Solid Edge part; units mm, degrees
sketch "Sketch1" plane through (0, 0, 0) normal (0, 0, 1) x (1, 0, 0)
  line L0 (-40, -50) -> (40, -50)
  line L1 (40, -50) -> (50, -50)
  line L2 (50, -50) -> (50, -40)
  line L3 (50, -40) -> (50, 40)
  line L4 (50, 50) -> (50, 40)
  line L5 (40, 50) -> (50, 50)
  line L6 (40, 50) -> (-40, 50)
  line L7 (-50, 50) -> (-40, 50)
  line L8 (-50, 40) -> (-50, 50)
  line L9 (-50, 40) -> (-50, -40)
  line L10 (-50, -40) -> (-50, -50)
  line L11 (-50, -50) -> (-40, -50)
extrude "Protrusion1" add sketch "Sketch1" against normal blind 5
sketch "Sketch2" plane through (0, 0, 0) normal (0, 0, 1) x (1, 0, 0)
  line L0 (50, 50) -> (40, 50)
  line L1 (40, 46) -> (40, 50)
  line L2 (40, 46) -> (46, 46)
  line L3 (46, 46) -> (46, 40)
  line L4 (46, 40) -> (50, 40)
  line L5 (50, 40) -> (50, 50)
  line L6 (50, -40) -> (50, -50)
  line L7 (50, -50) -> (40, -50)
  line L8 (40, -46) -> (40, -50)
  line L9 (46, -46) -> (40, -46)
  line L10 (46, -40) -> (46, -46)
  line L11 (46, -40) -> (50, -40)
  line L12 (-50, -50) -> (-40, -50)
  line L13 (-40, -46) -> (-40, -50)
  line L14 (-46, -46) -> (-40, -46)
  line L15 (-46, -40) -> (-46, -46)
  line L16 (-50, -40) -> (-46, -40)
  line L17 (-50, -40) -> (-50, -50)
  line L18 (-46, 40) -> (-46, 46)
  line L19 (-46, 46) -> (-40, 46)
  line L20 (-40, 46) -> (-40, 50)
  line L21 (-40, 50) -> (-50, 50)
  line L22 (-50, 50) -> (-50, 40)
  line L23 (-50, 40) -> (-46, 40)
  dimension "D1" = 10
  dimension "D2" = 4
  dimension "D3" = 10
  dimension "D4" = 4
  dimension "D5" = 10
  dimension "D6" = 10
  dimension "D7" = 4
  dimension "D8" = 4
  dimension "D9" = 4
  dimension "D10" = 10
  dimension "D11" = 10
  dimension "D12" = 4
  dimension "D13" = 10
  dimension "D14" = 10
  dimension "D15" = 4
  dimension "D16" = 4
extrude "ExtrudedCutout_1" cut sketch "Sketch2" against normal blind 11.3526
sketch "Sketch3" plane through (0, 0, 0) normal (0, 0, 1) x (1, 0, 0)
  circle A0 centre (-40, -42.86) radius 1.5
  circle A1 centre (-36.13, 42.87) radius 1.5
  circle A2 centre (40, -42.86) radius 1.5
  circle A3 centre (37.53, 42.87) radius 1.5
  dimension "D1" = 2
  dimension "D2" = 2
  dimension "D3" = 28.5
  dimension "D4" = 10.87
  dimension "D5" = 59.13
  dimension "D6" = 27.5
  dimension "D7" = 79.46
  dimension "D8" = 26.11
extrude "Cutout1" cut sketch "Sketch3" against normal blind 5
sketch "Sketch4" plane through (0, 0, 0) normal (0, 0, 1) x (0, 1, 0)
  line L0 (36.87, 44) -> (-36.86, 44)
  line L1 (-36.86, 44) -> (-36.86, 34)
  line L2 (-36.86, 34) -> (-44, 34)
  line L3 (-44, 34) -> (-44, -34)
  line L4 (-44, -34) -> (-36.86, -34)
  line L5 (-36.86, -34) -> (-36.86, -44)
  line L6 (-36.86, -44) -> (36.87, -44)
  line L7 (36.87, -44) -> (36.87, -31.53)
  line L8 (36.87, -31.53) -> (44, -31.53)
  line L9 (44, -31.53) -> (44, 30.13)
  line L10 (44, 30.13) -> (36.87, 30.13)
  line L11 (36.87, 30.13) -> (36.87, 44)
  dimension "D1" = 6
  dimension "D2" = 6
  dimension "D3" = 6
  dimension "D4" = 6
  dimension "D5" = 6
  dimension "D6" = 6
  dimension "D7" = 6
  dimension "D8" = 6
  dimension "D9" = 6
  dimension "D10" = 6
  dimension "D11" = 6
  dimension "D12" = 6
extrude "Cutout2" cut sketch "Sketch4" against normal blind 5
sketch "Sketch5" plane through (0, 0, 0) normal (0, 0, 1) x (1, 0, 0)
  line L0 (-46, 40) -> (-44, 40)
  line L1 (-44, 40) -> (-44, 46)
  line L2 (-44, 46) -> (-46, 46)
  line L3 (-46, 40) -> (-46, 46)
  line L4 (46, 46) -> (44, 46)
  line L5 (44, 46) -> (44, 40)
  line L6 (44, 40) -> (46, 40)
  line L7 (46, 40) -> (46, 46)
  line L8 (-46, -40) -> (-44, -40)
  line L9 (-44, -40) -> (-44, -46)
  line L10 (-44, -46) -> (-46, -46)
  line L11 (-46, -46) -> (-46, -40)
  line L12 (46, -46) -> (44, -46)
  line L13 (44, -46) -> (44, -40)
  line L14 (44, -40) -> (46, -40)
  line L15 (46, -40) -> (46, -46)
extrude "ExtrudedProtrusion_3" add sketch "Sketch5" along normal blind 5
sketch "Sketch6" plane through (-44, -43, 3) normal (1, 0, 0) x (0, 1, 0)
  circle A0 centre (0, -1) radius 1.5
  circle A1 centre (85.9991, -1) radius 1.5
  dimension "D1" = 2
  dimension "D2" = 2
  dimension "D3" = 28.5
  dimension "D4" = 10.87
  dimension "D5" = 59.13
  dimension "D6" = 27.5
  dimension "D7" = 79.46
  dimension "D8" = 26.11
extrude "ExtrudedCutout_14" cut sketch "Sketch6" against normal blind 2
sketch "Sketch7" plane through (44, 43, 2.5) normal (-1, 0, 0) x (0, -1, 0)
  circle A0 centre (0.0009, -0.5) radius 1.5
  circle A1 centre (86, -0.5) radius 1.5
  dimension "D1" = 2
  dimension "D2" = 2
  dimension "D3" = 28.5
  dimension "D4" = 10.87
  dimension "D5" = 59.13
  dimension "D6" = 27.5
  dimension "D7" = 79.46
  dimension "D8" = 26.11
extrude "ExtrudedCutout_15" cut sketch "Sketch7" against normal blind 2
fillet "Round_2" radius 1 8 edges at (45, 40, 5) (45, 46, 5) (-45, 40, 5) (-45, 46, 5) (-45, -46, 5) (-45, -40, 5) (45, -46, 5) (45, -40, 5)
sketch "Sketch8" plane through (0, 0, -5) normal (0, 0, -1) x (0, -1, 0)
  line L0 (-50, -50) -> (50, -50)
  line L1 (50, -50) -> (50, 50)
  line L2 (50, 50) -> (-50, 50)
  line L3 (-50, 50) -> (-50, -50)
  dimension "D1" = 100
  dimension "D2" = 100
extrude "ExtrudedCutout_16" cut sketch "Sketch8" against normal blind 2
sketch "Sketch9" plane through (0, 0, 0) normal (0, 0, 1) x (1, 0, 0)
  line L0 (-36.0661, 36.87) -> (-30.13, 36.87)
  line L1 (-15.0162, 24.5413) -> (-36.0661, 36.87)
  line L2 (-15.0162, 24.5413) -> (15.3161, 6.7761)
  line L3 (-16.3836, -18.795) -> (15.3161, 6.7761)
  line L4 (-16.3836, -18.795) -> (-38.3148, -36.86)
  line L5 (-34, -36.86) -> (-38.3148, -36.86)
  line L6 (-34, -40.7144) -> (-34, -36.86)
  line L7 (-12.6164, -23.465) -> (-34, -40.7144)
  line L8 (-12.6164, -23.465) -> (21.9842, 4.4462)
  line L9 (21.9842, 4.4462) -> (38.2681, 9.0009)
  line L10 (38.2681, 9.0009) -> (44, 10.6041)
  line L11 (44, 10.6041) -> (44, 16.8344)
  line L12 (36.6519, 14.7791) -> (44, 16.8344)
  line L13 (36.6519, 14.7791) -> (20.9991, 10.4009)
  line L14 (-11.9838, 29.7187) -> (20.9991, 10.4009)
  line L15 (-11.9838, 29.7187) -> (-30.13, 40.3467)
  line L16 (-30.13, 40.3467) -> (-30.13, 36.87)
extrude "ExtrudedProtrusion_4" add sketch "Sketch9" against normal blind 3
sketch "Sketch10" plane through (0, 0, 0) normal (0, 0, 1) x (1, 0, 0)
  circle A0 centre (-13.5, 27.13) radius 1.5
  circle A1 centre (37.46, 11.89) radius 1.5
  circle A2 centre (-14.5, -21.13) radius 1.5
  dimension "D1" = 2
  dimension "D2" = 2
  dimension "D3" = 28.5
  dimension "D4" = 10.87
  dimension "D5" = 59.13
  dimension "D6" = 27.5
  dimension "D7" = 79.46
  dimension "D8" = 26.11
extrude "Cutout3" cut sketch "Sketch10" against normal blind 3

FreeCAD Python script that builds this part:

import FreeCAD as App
import Part
import Sketcher

V = App.Vector


def edges_at(feature, points):
    """Names of the edges that pass closest to the given points."""
    edges = feature.Shape.Edges
    near = lambda p: min(range(len(edges)), key=lambda i: edges[i].distToShape(Part.Vertex(*p))[0])
    return sorted({f"Edge{near(p) + 1}" for p in points})

doc = App.newDocument("Part")
body = doc.addObject("PartDesign::Body", "Body")

sketch1 = doc.addObject("Sketcher::SketchObject", "Sketch")
body.addObject(sketch1)
sketch1.AttachmentSupport = (doc.XY_Plane, [""])
sketch1.MapMode = "FlatFace"
sketch1.addGeometry([
    Part.LineSegment(V(-50, -50, 0), V(50, -50, 0)),
    Part.LineSegment(V(50, -50, 0), V(50, 50, 0)),
    Part.LineSegment(V(50, 50, 0), V(-50, 50, 0)),
    Part.LineSegment(V(-50, 50, 0), V(-50, -50, 0)),
], False)
sketch1.addConstraint([
    Sketcher.Constraint("Coincident", 0, 2, 1, 1),
    Sketcher.Constraint("Coincident", 1, 2, 2, 1),
    Sketcher.Constraint("Coincident", 2, 2, 3, 1),
    Sketcher.Constraint("Coincident", 3, 2, 0, 1),
    Sketcher.Constraint("Horizontal", 0),
    Sketcher.Constraint("Vertical", 1),
    Sketcher.Constraint("Horizontal", 2),
    Sketcher.Constraint("Vertical", 3),
    Sketcher.Constraint("Symmetric", 0, 2, 2, 2, -1, 1),
    Sketcher.Constraint("Equal", 2, 1),
    Sketcher.Constraint("DistanceX", 0, 1, 0, 2, 100.0),
])
pad1 = doc.addObject("PartDesign::Pad", "Pad")
body.addObject(pad1)
pad1.Profile = sketch1
pad1.Length = 5
pad1.Reversed = True

sketch2 = doc.addObject("Sketcher::SketchObject", "Sketch001")
body.addObject(sketch2)
sketch2.AttachmentSupport = (doc.XY_Plane, [""])
sketch2.MapMode = "FlatFace"
sketch2.addGeometry([
    Part.LineSegment(V(50, 40, 0), V(50, 50, 0)),
    Part.LineSegment(V(50, 50, 0), V(40, 50, 0)),
    Part.LineSegment(V(40, 50, 0), V(40, 46, 0)),
    Part.LineSegment(V(40, 46, 0), V(46, 46, 0)),
    Part.LineSegment(V(46, 46, 0), V(46, 40, 0)),
    Part.LineSegment(V(46, 40, 0), V(50, 40, 0)),
    Part.LineSegment(V(50, -50, 0), V(50, -40, 0)),
    Part.LineSegment(V(50, -40, 0), V(46, -40, 0)),
    Part.LineSegment(V(46, -40, 0), V(46, -46, 0)),
    Part.LineSegment(V(46, -46, 0), V(40, -46, 0)),
    Part.LineSegment(V(40, -46, 0), V(40, -50, 0)),
    Part.LineSegment(V(40, -50, 0), V(50, -50, 0)),
    Part.LineSegment(V(-50, -40, 0), V(-50, -50, 0)),
    Part.LineSegment(V(-50, -50, 0), V(-40, -50, 0)),
    Part.LineSegment(V(-40, -50, 0), V(-40, -46, 0)),
    Part.LineSegment(V(-40, -46, 0), V(-46, -46, 0)),
    Part.LineSegment(V(-46, -46, 0), V(-46, -40, 0)),
    Part.LineSegment(V(-46, -40, 0), V(-50, -40, 0)),
    Part.LineSegment(V(-50, 40, 0), V(-46, 40, 0)),
    Part.LineSegment(V(-46, 40, 0), V(-46, 46, 0)),
    Part.LineSegment(V(-46, 46, 0), V(-40, 46, 0)),
    Part.LineSegment(V(-40, 46, 0), V(-40, 50, 0)),
    Part.LineSegment(V(-40, 50, 0), V(-50, 50, 0)),
    Part.LineSegment(V(-50, 50, 0), V(-50, 40, 0)),
], False)
sketch2.addConstraint([
    Sketcher.Constraint("Coincident", 0, 2, 1, 1),
    Sketcher.Constraint("Coincident", 1, 2, 2, 1),
    Sketcher.Constraint("Coincident", 2, 2, 3, 1),
    Sketcher.Constraint("Coincident", 3, 2, 4, 1),
    Sketcher.Constraint("Coincident", 4, 2, 5, 1),
    Sketcher.Constraint("Coincident", 5, 2, 0, 1),
    Sketcher.Constraint("Coincident", 6, 2, 7, 1),
    Sketcher.Constraint("Coincident", 7, 2, 8, 1),
    Sketcher.Constraint("Coincident", 8, 2, 9, 1),
    Sketcher.Constraint("Coincident", 9, 2, 10, 1),
    Sketcher.Constraint("Coincident", 10, 2, 11, 1),
    Sketcher.Constraint("Coincident", 11, 2, 6, 1),
    Sketcher.Constraint("Coincident", 12, 2, 13, 1),
    Sketcher.Constraint("Coincident", 13, 2, 14, 1),
    Sketcher.Constraint("Coincident", 14, 2, 15, 1),
    Sketcher.Constraint("Coincident", 15, 2, 16, 1),
    Sketcher.Constraint("Coincident", 16, 2, 17, 1),
    Sketcher.Constraint("Coincident", 17, 2, 12, 1),
    Sketcher.Constraint("Coincident", 18, 2, 19, 1),
    Sketcher.Constraint("Coincident", 19, 2, 20, 1),
    Sketcher.Constraint("Coincident", 20, 2, 21, 1),
    Sketcher.Constraint("Coincident", 21, 2, 22, 1),
    Sketcher.Constraint("Coincident", 22, 2, 23, 1),
    Sketcher.Constraint("Coincident", 23, 2, 18, 1),
    Sketcher.Constraint("Vertical", 0),
    Sketcher.Constraint("Horizontal", 1),
    Sketcher.Constraint("Vertical", 2),
    Sketcher.Constraint("Horizontal", 3),
    Sketcher.Constraint("Vertical", 4),
    Sketcher.Constraint("Horizontal", 5),
    Sketcher.Constraint("Vertical", 6),
    Sketcher.Constraint("Horizontal", 7),
    Sketcher.Constraint("Vertical", 8),
    Sketcher.Constraint("Horizontal", 9),
    Sketcher.Constraint("Vertical", 10),
    Sketcher.Constraint("Horizontal", 11),
    Sketcher.Constraint("Vertical", 12),
    Sketcher.Constraint("Horizontal", 13),
    Sketcher.Constraint("Vertical", 14),
    Sketcher.Constraint("Horizontal", 15),
    Sketcher.Constraint("Vertical", 16),
    Sketcher.Constraint("Horizontal", 17),
    Sketcher.Constraint("Horizontal", 18),
    Sketcher.Constraint("Vertical", 19),
    Sketcher.Constraint("Horizontal", 20),
    Sketcher.Constraint("Vertical", 21),
    Sketcher.Constraint("Horizontal", 22),
    Sketcher.Constraint("Vertical", 23),
    Sketcher.Constraint("Symmetric", 0, 2, 12, 2, -1, 1),
    Sketcher.Constraint("Symmetric", 2, 2, 14, 2, -1, 1),
    Sketcher.Constraint("Symmetric", 4, 2, 16, 2, -1, 1),
    Sketcher.Constraint("Symmetric", 7, 2, 18, 2, -1, 1),
    Sketcher.Constraint("Symmetric", 9, 2, 20, 2, -1, 1),
    Sketcher.Constraint("Symmetric", 11, 2, 22, 2, -1, 1),
    Sketcher.Constraint("Symmetric", 11, 2, 12, 2, -2),
    Sketcher.Constraint("Symmetric", 9, 2, 14, 2, -2),
    Sketcher.Constraint("Symmetric", 7, 2, 16, 2, -2),
    Sketcher.Constraint("Equal", 22, 0),
    Sketcher.Constraint("Equal", 18, 2),
    Sketcher.Constraint("DistanceX", -1, 1, 0, 2, 50.0),
    Sketcher.Constraint("DistanceY", -1, 1, 0, 2, 50.0),
    Sketcher.Constraint("DistanceX", -1, 1, 1, 2, 40.0),
    Sketcher.Constraint("DistanceY", -1, 1, 2, 2, 46.0),
])
pocket1 = doc.addObject("PartDesign::Pocket", "Pocket")
body.addObject(pocket1)
pocket1.Profile = sketch2
pocket1.Length = 11.3526

sketch3 = doc.addObject("Sketcher::SketchObject", "Sketch002")
body.addObject(sketch3)
sketch3.AttachmentSupport = (doc.XY_Plane, [""])
sketch3.MapMode = "FlatFace"
sketch3.addGeometry([
    Part.Circle(V(-40, -42.9, 0), V(0, 0, 1), 1.5),
    Part.Circle(V(-36.1, 42.9, 0), V(0, 0, 1), 1.5),
    Part.Circle(V(40, -42.9, 0), V(0, 0, 1), 1.5),
    Part.Circle(V(37.5, 42.9, 0), V(0, 0, 1), 1.5),
], False)
sketch3.addConstraint([
    Sketcher.Constraint("Equal", 0, 1),
    Sketcher.Constraint("Equal", 1, 2),
    Sketcher.Constraint("Equal", 2, 3),
    Sketcher.Constraint("Symmetric", 0, 3, 2, 3, -2),
    Sketcher.Constraint("Horizontal", 1, 3, 3, 3),
    Sketcher.Constraint("Diameter", 0, 3.0),
    Sketcher.Constraint("DistanceX", 0, 3, -1, 1, 40.0),
    Sketcher.Constraint("DistanceY", 0, 3, -1, 1, 42.86),
    Sketcher.Constraint("DistanceX", 1, 3, -1, 1, 36.13),
    Sketcher.Constraint("DistanceY", -1, 1, 1, 3, 42.87),
    Sketcher.Constraint("DistanceX", -1, 1, 3, 3, 37.53),
])
pocket2 = doc.addObject("PartDesign::Pocket", "Pocket001")
body.addObject(pocket2)
pocket2.Profile = sketch3
pocket2.Length = 5

sketch4 = doc.addObject("Sketcher::SketchObject", "Sketch003")
body.addObject(sketch4)
sketch4.AttachmentSupport = (doc.XY_Plane, [""])
sketch4.MapMode = "FlatFace"
sketch4.addGeometry([
    Part.LineSegment(V(-30, 37, 0), V(-44, 37, 0)),
    Part.LineSegment(V(-44, 37, 0), V(-44, -37, 0)),
    Part.LineSegment(V(-44, -37, 0), V(-34, -37, 0)),
    Part.LineSegment(V(-34, -37, 0), V(-34, -44, 0)),
    Part.LineSegment(V(-34, -44, 0), V(34, -44, 0)),
    Part.LineSegment(V(34, -44, 0), V(34, -37, 0)),
    Part.LineSegment(V(34, -37, 0), V(44, -37, 0)),
    Part.LineSegment(V(44, -37, 0), V(44, 37, 0)),
    Part.LineSegment(V(44, 37, 0), V(32, 37, 0)),
    Part.LineSegment(V(32, 37, 0), V(32, 44, 0)),
    Part.LineSegment(V(32, 44, 0), V(-30, 44, 0)),
    Part.LineSegment(V(-30, 44, 0), V(-30, 37, 0)),
], False)
sketch4.addConstraint([
    Sketcher.Constraint("Coincident", 0, 2, 1, 1),
    Sketcher.Constraint("Coincident", 1, 2, 2, 1),
    Sketcher.Constraint("Coincident", 2, 2, 3, 1),
    Sketcher.Constraint("Coincident", 3, 2, 4, 1),
    Sketcher.Constraint("Coincident", 4, 2, 5, 1),
    Sketcher.Constraint("Coincident", 5, 2, 6, 1),
    Sketcher.Constraint("Coincident", 6, 2, 7, 1),
    Sketcher.Constraint("Coincident", 7, 2, 8, 1),
    Sketcher.Constraint("Coincident", 8, 2, 9, 1),
    Sketcher.Constraint("Coincident", 9, 2, 10, 1),
    Sketcher.Constraint("Coincident", 10, 2, 11, 1),
    Sketcher.Constraint("Coincident", 11, 2, 0, 1),
    Sketcher.Constraint("Horizontal", 0),
    Sketcher.Constraint("Vertical", 1),
    Sketcher.Constraint("Horizontal", 2),
    Sketcher.Constraint("Vertical", 3),
    Sketcher.Constraint("Horizontal", 4),
    Sketcher.Constraint("Vertical", 5),
    Sketcher.Constraint("Horizontal", 6),
    Sketcher.Constraint("Vertical", 7),
    Sketcher.Constraint("Horizontal", 8),
    Sketcher.Constraint("Vertical", 9),
    Sketcher.Constraint("Horizontal", 10),
    Sketcher.Constraint("Vertical", 11),
    Sketcher.Constraint("Symmetric", 2, 2, 5, 2, -2),
    Sketcher.Constraint("Symmetric", 0, 2, 7, 2, -2),
    Sketcher.Constraint("DistanceX", 2, 1, 2, 2, 10.0),
    Sketcher.Constraint("DistanceX", 4, 1, 4, 2, 68.0),
    Sketcher.Constraint("DistanceY", 3, 2, -1, 1, 44.0),
    Sketcher.Constraint("DistanceY", -1, 1, 9, 2, 44.0),
    Sketcher.Constraint("DistanceX", 0, 2, 0, 1, 13.87),
    Sketcher.Constraint("DistanceX", 8, 2, 8, 1, 12.47),
    Sketcher.Constraint("DistanceY", 1, 2, 1, 1, 73.73),
    Sketcher.Constraint("DistanceY", 3, 2, 3, 1, 7.14),
])
pocket3 = doc.addObject("PartDesign::Pocket", "Pocket002")
body.addObject(pocket3)
pocket3.Profile = sketch4
pocket3.Length = 5

sketch5 = doc.addObject("Sketcher::SketchObject", "Sketch004")
body.addObject(sketch5)
sketch5.AttachmentSupport = (doc.XY_Plane, [""])
sketch5.MapMode = "FlatFace"
sketch5.addGeometry([
    Part.LineSegment(V(-46, 46, 0), V(-46, 40, 0)),
    Part.LineSegment(V(-46, 40, 0), V(-44, 40, 0)),
    Part.LineSegment(V(-44, 40, 0), V(-44, 46, 0)),
    Part.LineSegment(V(-44, 46, 0), V(-46, 46, 0)),
    Part.LineSegment(V(46, 40, 0), V(46, 46, 0)),
    Part.LineSegment(V(46, 46, 0), V(44, 46, 0)),
    Part.LineSegment(V(44, 46, 0), V(44, 40, 0)),
    Part.LineSegment(V(44, 40, 0), V(46, 40, 0)),
    Part.LineSegment(V(-44, -40, 0), V(-46, -40, 0)),
    Part.LineSegment(V(-46, -40, 0), V(-46, -46, 0)),
    Part.LineSegment(V(-46, -46, 0), V(-44, -46, 0)),
    Part.LineSegment(V(-44, -46, 0), V(-44, -40, 0)),
    Part.LineSegment(V(44, -46, 0), V(46, -46, 0)),
    Part.LineSegment(V(46, -46, 0), V(46, -40, 0)),
    Part.LineSegment(V(46, -40, 0), V(44, -40, 0)),
    Part.LineSegment(V(44, -40, 0), V(44, -46, 0)),
], False)
sketch5.addConstraint([
    Sketcher.Constraint("Coincident", 0, 2, 1, 1),
    Sketcher.Constraint("Coincident", 1, 2, 2, 1),
    Sketcher.Constraint("Coincident", 2, 2, 3, 1),
    Sketcher.Constraint("Coincident", 3, 2, 0, 1),
    Sketcher.Constraint("Coincident", 4, 2, 5, 1),
    Sketcher.Constraint("Coincident", 5, 2, 6, 1),
    Sketcher.Constraint("Coincident", 6, 2, 7, 1),
    Sketcher.Constraint("Coincident", 7, 2, 4, 1),
    Sketcher.Constraint("Coincident", 8, 2, 9, 1),
    Sketcher.Constraint("Coincident", 9, 2, 10, 1),
    Sketcher.Constraint("Coincident", 10, 2, 11, 1),
    Sketcher.Constraint("Coincident", 11, 2, 8, 1),
    Sketcher.Constraint("Coincident", 12, 2, 13, 1),
    Sketcher.Constraint("Coincident", 13, 2, 14, 1),
    Sketcher.Constraint("Coincident", 14, 2, 15, 1),
    Sketcher.Constraint("Coincident", 15, 2, 12, 1),
    Sketcher.Constraint("Vertical", 0),
    Sketcher.Constraint("Horizontal", 1),
    Sketcher.Constraint("Vertical", 2),
    Sketcher.Constraint("Horizontal", 3),
    Sketcher.Constraint("Vertical", 4),
    Sketcher.Constraint("Horizontal", 5),
    Sketcher.Constraint("Vertical", 6),
    Sketcher.Constraint("Horizontal", 7),
    Sketcher.Constraint("Horizontal", 8),
    Sketcher.Constraint("Vertical", 9),
    Sketcher.Constraint("Horizontal", 10),
    Sketcher.Constraint("Vertical", 11),
    Sketcher.Constraint("Horizontal", 12),
    Sketcher.Constraint("Vertical", 13),
    Sketcher.Constraint("Horizontal", 14),
    Sketcher.Constraint("Vertical", 15),
    Sketcher.Constraint("Symmetric", 7, 2, 8, 2, -1, 1),
    Sketcher.Constraint("Symmetric", 5, 2, 10, 2, -1, 1),
    Sketcher.Constraint("Symmetric", 3, 2, 12, 2, -1, 1),
    Sketcher.Constraint("Symmetric", 1, 2, 14, 2, -1, 1),
    Sketcher.Constraint("Symmetric", 3, 2, 4, 2, -2),
    Sketcher.Constraint("Symmetric", 1, 2, 6, 2, -2),
    Sketcher.Constraint("DistanceX", 1, 1, 1, 2, 2.0),
    Sketcher.Constraint("DistanceY", 0, 2, 0, 1, 6.0),
    Sketcher.Constraint("DistanceX", 0, 2, -1, 1, 46.0),
    Sketcher.Constraint("DistanceY", -1, 1, 0, 2, 40.0),
])
pad2 = doc.addObject("PartDesign::Pad", "Pad001")
body.addObject(pad2)
pad2.Profile = sketch5
pad2.Length = 5

sketch6 = doc.addObject("Sketcher::SketchObject", "Sketch005")
body.addObject(sketch6)
sketch6.AttachmentSupport = (doc.YZ_Plane, [""])
sketch6.MapMode = "FlatFace"
sketch6.AttachmentOffset = App.Placement(V(0, 0, -44), App.Rotation())
sketch6.addGeometry([
    Part.Circle(V(-43, 2, 0), V(0, 0, 1), 1.5),
    Part.Circle(V(43, 2, 0), V(0, 0, 1), 1.5),
], False)
sketch6.addConstraint([
    Sketcher.Constraint("Equal", 0, 1),
    Sketcher.Constraint("Horizontal", 0, 3, 1, 3),
    Sketcher.Constraint("Diameter", 0, 3.0),
    Sketcher.Constraint("DistanceX", 0, 3, -1, 1, 43.0),
    Sketcher.Constraint("DistanceY", -1, 1, 0, 3, 2.0),
    Sketcher.Constraint("DistanceX", -1, 1, 1, 3, 42.999),
])
pocket4 = doc.addObject("PartDesign::Pocket", "Pocket003")
body.addObject(pocket4)
pocket4.Profile = sketch6
pocket4.Length = 2

sketch7 = doc.addObject("Sketcher::SketchObject", "Sketch006")
body.addObject(sketch7)
sketch7.AttachmentSupport = (doc.YZ_Plane, [""])
sketch7.MapMode = "FlatFace"
sketch7.AttachmentOffset = App.Placement(V(0, 0, 44), App.Rotation())
sketch7.addGeometry([
    Part.Circle(V(43, 2, 0), V(0, 0, 1), 1.5),
    Part.Circle(V(-43, 2, 0), V(0, 0, 1), 1.5),
], False)
sketch7.addConstraint([
    Sketcher.Constraint("Equal", 0, 1),
    Sketcher.Constraint("Horizontal", 0, 3, 1, 3),
    Sketcher.Constraint("Diameter", 0, 3.0),
    Sketcher.Constraint("DistanceY", -1, 1, 0, 3, 2.0),
    Sketcher.Constraint("DistanceX", 1, 3, -1, 1, 43.0),
    Sketcher.Constraint("DistanceX", -1, 1, 0, 3, 42.999),
])
pocket5 = doc.addObject("PartDesign::Pocket", "Pocket004")
body.addObject(pocket5)
pocket5.Profile = sketch7
pocket5.Length = 2
pocket5.Reversed = True
doc.recompute()

fillet = doc.addObject("PartDesign::Fillet", "Fillet")
body.addObject(fillet)
fillet.Base = (pocket5, edges_at(pocket5, [
    (45, 40, 5),
    (45, 46, 5),
    (-45, 40, 5),
    (-45, 46, 5),
    (-45, -46, 5),
    (-45, -40, 5),
    (45, -46, 5),
    (45, -40, 5),
]))
fillet.Radius = 1

sketch8 = doc.addObject("Sketcher::SketchObject", "Sketch007")
body.addObject(sketch8)
sketch8.AttachmentSupport = (doc.XY_Plane, [""])
sketch8.MapMode = "FlatFace"
sketch8.AttachmentOffset = App.Placement(V(0, 0, -5), App.Rotation())
sketch8.addGeometry([
    Part.LineSegment(V(-50, 50, 0), V(50, 50, 0)),
    Part.LineSegment(V(50, 50, 0), V(50, -50, 0)),
    Part.LineSegment(V(50, -50, 0), V(-50, -50, 0)),
    Part.LineSegment(V(-50, -50, 0), V(-50, 50, 0)),
], False)
sketch8.addConstraint([
    Sketcher.Constraint("Coincident", 0, 2, 1, 1),
    Sketcher.Constraint("Coincident", 1, 2, 2, 1),
    Sketcher.Constraint("Coincident", 2, 2, 3, 1),
    Sketcher.Constraint("Coincident", 3, 2, 0, 1),
    Sketcher.Constraint("Horizontal", 0),
    Sketcher.Constraint("Vertical", 1),
    Sketcher.Constraint("Horizontal", 2),
    Sketcher.Constraint("Vertical", 3),
    Sketcher.Constraint("Symmetric", 0, 2, 2, 2, -1, 1),
    Sketcher.Constraint("Equal", 2, 1),
    Sketcher.Constraint("DistanceX", -1, 1, 0, 2, 50.0),
])
pocket6 = doc.addObject("PartDesign::Pocket", "Pocket005")
body.addObject(pocket6)
pocket6.Profile = sketch8
pocket6.Length = 2
pocket6.Reversed = True

sketch9 = doc.addObject("Sketcher::SketchObject", "Sketch008")
body.addObject(sketch9)
sketch9.AttachmentSupport = (doc.XY_Plane, [""])
sketch9.MapMode = "FlatFace"
sketch9.addGeometry([
    Part.LineSegment(V(-30.1, 36.9, 0), V(-36.1, 36.9, 0)),
    Part.LineSegment(V(-36.1, 36.9, 0), V(-15, 24.5, 0)),
    Part.LineSegment(V(-15, 24.5, 0), V(15.3, 6.8, 0)),
    Part.LineSegment(V(15.3, 6.8, 0), V(-16.4, -18.8, 0)),
    Part.LineSegment(V(-16.4, -18.8, 0), V(-38.3, -36.9, 0)),
    Part.LineSegment(V(-38.3, -36.9, 0), V(-34, -36.9, 0)),
    Part.LineSegment(V(-34, -36.9, 0), V(-34, -40.7, 0)),
    Part.LineSegment(V(-34, -40.7, 0), V(-12.6, -23.5, 0)),
    Part.LineSegment(V(-12.6, -23.5, 0), V(22, 4.4, 0)),
    Part.LineSegment(V(22, 4.4, 0), V(38.3, 9, 0)),
    Part.LineSegment(V(38.3, 9, 0), V(44, 10.6, 0)),
    Part.LineSegment(V(44, 10.6, 0), V(44, 16.8, 0)),
    Part.LineSegment(V(44, 16.8, 0), V(36.7, 14.8, 0)),
    Part.LineSegment(V(36.7, 14.8, 0), V(21, 10.4, 0)),
    Part.LineSegment(V(21, 10.4, 0), V(-12, 29.7, 0)),
    Part.LineSegment(V(-12, 29.7, 0), V(-30.1, 40.3, 0)),
    Part.LineSegment(V(-30.1, 40.3, 0), V(-30.1, 36.9, 0)),
], False)
sketch9.addConstraint([
    Sketcher.Constraint("Coincident", 0, 2, 1, 1),
    Sketcher.Constraint("Coincident", 1, 2, 2, 1),
    Sketcher.Constraint("Coincident", 2, 2, 3, 1),
    Sketcher.Constraint("Coincident", 3, 2, 4, 1),
    Sketcher.Constraint("Coincident", 4, 2, 5, 1),
    Sketcher.Constraint("Coincident", 5, 2, 6, 1),
    Sketcher.Constraint("Coincident", 6, 2, 7, 1),
    Sketcher.Constraint("Coincident", 7, 2, 8, 1),
    Sketcher.Constraint("Coincident", 8, 2, 9, 1),
    Sketcher.Constraint("Coincident", 9, 2, 10, 1),
    Sketcher.Constraint("Coincident", 10, 2, 11, 1),
    Sketcher.Constraint("Coincident", 11, 2, 12, 1),
    Sketcher.Constraint("Coincident", 12, 2, 13, 1),
    Sketcher.Constraint("Coincident", 13, 2, 14, 1),
    Sketcher.Constraint("Coincident", 14, 2, 15, 1),
    Sketcher.Constraint("Coincident", 15, 2, 16, 1),
    Sketcher.Constraint("Coincident", 16, 2, 0, 1),
    Sketcher.Constraint("Horizontal", 0),
    Sketcher.Constraint("Horizontal", 5),
    Sketcher.Constraint("Vertical", 6),
    Sketcher.Constraint("Vertical", 11),
    Sketcher.Constraint("Vertical", 16),
    Sketcher.Constraint("Parallel", 1, 2),
    Sketcher.Constraint("Parallel", 3, 7),
    Sketcher.Constraint("Parallel", 7, 8),
    Sketcher.Constraint("Parallel", 9, 10),
    Sketcher.Constraint("Parallel", 10, 12),
    Sketcher.Constraint("Parallel", 12, 13),
    Sketcher.Constraint("Parallel", 2, 14),
    Sketcher.Constraint("Parallel", 14, 15),
    Sketcher.Constraint("DistanceX", 5, 2, -1, 1, 34.0),
    Sketcher.Constraint("DistanceX", -1, 1, 10, 2, 44.0),
    Sketcher.Constraint("DistanceY", 9, 2, 13, 2, 1.4),
    Sketcher.Constraint("DistanceX", 14, 2, 2, 2, 27.3),
    Sketcher.Constraint("DistanceX", 0, 2, 0, 1, 5.936),
    Sketcher.Constraint("DistanceY", -1, 1, 0, 2, 36.87),
    Sketcher.Constraint("DistanceY", 4, 2, -1, 1, 36.86),
    Sketcher.Constraint("DistanceX", 15, 2, -1, 1, 30.13),
    Sketcher.Constraint("DistanceX", 0, 2, 1, 2, 21.05),
    Sketcher.Constraint("DistanceY", 7, 2, 3, 2, 4.67),
    Sketcher.Constraint("DistanceY", 8, 2, 2, 2, 2.33),
    Sketcher.Constraint("Distance", 8, 44.455),
    Sketcher.Constraint("Distance", 9, 16.909),
    Sketcher.Constraint("Distance", 10, 5.952),
    Sketcher.Constraint("DistanceX", 5, 1, 5, 2, 4.3148),
    Sketcher.Constraint("DistanceY", 6, 2, 6, 1, 3.8544),
    Sketcher.Constraint("DistanceY", 11, 1, 11, 2, 6.2303),
    Sketcher.Constraint("DistanceY", 16, 2, 16, 1, 3.4767),
    Sketcher.Constraint("DistanceX", -1, 1, 2, 2, 15.316),
    Sketcher.Constraint("DistanceY", -1, 1, 2, 2, 6.776),
    Sketcher.Constraint("DistanceX", -1, 1, 12, 2, 36.652),
])
pad3 = doc.addObject("PartDesign::Pad", "Pad002")
body.addObject(pad3)
pad3.Profile = sketch9
pad3.Length = 3
pad3.Reversed = True

sketch10 = doc.addObject("Sketcher::SketchObject", "Sketch009")
body.addObject(sketch10)
sketch10.AttachmentSupport = (doc.XY_Plane, [""])
sketch10.MapMode = "FlatFace"
sketch10.addGeometry([
    Part.Circle(V(-13.5, 27.1, 0), V(0, 0, 1), 1.5),
    Part.Circle(V(37.5, 11.9, 0), V(0, 0, 1), 1.5),
    Part.Circle(V(-14.5, -21.1, 0), V(0, 0, 1), 1.5),
], False)
sketch10.addConstraint([
    Sketcher.Constraint("Equal", 0, 1),
    Sketcher.Constraint("Equal", 1, 2),
    Sketcher.Constraint("Diameter", 0, 3.0),
    Sketcher.Constraint("DistanceX", 2, 3, 0, 3, 1.0),
    Sketcher.Constraint("DistanceX", 0, 3, -1, 1, 13.5),
    Sketcher.Constraint("DistanceY", -1, 1, 0, 3, 27.13),
    Sketcher.Constraint("DistanceX", -1, 1, 1, 3, 37.46),
    Sketcher.Constraint("DistanceY", -1, 1, 1, 3, 11.89),
    Sketcher.Constraint("DistanceY", 2, 3, -1, 1, 21.13),
])
pocket7 = doc.addObject("PartDesign::Pocket", "Pocket006")
body.addObject(pocket7)
pocket7.Profile = sketch10
pocket7.Length = 3

doc.recompute()
